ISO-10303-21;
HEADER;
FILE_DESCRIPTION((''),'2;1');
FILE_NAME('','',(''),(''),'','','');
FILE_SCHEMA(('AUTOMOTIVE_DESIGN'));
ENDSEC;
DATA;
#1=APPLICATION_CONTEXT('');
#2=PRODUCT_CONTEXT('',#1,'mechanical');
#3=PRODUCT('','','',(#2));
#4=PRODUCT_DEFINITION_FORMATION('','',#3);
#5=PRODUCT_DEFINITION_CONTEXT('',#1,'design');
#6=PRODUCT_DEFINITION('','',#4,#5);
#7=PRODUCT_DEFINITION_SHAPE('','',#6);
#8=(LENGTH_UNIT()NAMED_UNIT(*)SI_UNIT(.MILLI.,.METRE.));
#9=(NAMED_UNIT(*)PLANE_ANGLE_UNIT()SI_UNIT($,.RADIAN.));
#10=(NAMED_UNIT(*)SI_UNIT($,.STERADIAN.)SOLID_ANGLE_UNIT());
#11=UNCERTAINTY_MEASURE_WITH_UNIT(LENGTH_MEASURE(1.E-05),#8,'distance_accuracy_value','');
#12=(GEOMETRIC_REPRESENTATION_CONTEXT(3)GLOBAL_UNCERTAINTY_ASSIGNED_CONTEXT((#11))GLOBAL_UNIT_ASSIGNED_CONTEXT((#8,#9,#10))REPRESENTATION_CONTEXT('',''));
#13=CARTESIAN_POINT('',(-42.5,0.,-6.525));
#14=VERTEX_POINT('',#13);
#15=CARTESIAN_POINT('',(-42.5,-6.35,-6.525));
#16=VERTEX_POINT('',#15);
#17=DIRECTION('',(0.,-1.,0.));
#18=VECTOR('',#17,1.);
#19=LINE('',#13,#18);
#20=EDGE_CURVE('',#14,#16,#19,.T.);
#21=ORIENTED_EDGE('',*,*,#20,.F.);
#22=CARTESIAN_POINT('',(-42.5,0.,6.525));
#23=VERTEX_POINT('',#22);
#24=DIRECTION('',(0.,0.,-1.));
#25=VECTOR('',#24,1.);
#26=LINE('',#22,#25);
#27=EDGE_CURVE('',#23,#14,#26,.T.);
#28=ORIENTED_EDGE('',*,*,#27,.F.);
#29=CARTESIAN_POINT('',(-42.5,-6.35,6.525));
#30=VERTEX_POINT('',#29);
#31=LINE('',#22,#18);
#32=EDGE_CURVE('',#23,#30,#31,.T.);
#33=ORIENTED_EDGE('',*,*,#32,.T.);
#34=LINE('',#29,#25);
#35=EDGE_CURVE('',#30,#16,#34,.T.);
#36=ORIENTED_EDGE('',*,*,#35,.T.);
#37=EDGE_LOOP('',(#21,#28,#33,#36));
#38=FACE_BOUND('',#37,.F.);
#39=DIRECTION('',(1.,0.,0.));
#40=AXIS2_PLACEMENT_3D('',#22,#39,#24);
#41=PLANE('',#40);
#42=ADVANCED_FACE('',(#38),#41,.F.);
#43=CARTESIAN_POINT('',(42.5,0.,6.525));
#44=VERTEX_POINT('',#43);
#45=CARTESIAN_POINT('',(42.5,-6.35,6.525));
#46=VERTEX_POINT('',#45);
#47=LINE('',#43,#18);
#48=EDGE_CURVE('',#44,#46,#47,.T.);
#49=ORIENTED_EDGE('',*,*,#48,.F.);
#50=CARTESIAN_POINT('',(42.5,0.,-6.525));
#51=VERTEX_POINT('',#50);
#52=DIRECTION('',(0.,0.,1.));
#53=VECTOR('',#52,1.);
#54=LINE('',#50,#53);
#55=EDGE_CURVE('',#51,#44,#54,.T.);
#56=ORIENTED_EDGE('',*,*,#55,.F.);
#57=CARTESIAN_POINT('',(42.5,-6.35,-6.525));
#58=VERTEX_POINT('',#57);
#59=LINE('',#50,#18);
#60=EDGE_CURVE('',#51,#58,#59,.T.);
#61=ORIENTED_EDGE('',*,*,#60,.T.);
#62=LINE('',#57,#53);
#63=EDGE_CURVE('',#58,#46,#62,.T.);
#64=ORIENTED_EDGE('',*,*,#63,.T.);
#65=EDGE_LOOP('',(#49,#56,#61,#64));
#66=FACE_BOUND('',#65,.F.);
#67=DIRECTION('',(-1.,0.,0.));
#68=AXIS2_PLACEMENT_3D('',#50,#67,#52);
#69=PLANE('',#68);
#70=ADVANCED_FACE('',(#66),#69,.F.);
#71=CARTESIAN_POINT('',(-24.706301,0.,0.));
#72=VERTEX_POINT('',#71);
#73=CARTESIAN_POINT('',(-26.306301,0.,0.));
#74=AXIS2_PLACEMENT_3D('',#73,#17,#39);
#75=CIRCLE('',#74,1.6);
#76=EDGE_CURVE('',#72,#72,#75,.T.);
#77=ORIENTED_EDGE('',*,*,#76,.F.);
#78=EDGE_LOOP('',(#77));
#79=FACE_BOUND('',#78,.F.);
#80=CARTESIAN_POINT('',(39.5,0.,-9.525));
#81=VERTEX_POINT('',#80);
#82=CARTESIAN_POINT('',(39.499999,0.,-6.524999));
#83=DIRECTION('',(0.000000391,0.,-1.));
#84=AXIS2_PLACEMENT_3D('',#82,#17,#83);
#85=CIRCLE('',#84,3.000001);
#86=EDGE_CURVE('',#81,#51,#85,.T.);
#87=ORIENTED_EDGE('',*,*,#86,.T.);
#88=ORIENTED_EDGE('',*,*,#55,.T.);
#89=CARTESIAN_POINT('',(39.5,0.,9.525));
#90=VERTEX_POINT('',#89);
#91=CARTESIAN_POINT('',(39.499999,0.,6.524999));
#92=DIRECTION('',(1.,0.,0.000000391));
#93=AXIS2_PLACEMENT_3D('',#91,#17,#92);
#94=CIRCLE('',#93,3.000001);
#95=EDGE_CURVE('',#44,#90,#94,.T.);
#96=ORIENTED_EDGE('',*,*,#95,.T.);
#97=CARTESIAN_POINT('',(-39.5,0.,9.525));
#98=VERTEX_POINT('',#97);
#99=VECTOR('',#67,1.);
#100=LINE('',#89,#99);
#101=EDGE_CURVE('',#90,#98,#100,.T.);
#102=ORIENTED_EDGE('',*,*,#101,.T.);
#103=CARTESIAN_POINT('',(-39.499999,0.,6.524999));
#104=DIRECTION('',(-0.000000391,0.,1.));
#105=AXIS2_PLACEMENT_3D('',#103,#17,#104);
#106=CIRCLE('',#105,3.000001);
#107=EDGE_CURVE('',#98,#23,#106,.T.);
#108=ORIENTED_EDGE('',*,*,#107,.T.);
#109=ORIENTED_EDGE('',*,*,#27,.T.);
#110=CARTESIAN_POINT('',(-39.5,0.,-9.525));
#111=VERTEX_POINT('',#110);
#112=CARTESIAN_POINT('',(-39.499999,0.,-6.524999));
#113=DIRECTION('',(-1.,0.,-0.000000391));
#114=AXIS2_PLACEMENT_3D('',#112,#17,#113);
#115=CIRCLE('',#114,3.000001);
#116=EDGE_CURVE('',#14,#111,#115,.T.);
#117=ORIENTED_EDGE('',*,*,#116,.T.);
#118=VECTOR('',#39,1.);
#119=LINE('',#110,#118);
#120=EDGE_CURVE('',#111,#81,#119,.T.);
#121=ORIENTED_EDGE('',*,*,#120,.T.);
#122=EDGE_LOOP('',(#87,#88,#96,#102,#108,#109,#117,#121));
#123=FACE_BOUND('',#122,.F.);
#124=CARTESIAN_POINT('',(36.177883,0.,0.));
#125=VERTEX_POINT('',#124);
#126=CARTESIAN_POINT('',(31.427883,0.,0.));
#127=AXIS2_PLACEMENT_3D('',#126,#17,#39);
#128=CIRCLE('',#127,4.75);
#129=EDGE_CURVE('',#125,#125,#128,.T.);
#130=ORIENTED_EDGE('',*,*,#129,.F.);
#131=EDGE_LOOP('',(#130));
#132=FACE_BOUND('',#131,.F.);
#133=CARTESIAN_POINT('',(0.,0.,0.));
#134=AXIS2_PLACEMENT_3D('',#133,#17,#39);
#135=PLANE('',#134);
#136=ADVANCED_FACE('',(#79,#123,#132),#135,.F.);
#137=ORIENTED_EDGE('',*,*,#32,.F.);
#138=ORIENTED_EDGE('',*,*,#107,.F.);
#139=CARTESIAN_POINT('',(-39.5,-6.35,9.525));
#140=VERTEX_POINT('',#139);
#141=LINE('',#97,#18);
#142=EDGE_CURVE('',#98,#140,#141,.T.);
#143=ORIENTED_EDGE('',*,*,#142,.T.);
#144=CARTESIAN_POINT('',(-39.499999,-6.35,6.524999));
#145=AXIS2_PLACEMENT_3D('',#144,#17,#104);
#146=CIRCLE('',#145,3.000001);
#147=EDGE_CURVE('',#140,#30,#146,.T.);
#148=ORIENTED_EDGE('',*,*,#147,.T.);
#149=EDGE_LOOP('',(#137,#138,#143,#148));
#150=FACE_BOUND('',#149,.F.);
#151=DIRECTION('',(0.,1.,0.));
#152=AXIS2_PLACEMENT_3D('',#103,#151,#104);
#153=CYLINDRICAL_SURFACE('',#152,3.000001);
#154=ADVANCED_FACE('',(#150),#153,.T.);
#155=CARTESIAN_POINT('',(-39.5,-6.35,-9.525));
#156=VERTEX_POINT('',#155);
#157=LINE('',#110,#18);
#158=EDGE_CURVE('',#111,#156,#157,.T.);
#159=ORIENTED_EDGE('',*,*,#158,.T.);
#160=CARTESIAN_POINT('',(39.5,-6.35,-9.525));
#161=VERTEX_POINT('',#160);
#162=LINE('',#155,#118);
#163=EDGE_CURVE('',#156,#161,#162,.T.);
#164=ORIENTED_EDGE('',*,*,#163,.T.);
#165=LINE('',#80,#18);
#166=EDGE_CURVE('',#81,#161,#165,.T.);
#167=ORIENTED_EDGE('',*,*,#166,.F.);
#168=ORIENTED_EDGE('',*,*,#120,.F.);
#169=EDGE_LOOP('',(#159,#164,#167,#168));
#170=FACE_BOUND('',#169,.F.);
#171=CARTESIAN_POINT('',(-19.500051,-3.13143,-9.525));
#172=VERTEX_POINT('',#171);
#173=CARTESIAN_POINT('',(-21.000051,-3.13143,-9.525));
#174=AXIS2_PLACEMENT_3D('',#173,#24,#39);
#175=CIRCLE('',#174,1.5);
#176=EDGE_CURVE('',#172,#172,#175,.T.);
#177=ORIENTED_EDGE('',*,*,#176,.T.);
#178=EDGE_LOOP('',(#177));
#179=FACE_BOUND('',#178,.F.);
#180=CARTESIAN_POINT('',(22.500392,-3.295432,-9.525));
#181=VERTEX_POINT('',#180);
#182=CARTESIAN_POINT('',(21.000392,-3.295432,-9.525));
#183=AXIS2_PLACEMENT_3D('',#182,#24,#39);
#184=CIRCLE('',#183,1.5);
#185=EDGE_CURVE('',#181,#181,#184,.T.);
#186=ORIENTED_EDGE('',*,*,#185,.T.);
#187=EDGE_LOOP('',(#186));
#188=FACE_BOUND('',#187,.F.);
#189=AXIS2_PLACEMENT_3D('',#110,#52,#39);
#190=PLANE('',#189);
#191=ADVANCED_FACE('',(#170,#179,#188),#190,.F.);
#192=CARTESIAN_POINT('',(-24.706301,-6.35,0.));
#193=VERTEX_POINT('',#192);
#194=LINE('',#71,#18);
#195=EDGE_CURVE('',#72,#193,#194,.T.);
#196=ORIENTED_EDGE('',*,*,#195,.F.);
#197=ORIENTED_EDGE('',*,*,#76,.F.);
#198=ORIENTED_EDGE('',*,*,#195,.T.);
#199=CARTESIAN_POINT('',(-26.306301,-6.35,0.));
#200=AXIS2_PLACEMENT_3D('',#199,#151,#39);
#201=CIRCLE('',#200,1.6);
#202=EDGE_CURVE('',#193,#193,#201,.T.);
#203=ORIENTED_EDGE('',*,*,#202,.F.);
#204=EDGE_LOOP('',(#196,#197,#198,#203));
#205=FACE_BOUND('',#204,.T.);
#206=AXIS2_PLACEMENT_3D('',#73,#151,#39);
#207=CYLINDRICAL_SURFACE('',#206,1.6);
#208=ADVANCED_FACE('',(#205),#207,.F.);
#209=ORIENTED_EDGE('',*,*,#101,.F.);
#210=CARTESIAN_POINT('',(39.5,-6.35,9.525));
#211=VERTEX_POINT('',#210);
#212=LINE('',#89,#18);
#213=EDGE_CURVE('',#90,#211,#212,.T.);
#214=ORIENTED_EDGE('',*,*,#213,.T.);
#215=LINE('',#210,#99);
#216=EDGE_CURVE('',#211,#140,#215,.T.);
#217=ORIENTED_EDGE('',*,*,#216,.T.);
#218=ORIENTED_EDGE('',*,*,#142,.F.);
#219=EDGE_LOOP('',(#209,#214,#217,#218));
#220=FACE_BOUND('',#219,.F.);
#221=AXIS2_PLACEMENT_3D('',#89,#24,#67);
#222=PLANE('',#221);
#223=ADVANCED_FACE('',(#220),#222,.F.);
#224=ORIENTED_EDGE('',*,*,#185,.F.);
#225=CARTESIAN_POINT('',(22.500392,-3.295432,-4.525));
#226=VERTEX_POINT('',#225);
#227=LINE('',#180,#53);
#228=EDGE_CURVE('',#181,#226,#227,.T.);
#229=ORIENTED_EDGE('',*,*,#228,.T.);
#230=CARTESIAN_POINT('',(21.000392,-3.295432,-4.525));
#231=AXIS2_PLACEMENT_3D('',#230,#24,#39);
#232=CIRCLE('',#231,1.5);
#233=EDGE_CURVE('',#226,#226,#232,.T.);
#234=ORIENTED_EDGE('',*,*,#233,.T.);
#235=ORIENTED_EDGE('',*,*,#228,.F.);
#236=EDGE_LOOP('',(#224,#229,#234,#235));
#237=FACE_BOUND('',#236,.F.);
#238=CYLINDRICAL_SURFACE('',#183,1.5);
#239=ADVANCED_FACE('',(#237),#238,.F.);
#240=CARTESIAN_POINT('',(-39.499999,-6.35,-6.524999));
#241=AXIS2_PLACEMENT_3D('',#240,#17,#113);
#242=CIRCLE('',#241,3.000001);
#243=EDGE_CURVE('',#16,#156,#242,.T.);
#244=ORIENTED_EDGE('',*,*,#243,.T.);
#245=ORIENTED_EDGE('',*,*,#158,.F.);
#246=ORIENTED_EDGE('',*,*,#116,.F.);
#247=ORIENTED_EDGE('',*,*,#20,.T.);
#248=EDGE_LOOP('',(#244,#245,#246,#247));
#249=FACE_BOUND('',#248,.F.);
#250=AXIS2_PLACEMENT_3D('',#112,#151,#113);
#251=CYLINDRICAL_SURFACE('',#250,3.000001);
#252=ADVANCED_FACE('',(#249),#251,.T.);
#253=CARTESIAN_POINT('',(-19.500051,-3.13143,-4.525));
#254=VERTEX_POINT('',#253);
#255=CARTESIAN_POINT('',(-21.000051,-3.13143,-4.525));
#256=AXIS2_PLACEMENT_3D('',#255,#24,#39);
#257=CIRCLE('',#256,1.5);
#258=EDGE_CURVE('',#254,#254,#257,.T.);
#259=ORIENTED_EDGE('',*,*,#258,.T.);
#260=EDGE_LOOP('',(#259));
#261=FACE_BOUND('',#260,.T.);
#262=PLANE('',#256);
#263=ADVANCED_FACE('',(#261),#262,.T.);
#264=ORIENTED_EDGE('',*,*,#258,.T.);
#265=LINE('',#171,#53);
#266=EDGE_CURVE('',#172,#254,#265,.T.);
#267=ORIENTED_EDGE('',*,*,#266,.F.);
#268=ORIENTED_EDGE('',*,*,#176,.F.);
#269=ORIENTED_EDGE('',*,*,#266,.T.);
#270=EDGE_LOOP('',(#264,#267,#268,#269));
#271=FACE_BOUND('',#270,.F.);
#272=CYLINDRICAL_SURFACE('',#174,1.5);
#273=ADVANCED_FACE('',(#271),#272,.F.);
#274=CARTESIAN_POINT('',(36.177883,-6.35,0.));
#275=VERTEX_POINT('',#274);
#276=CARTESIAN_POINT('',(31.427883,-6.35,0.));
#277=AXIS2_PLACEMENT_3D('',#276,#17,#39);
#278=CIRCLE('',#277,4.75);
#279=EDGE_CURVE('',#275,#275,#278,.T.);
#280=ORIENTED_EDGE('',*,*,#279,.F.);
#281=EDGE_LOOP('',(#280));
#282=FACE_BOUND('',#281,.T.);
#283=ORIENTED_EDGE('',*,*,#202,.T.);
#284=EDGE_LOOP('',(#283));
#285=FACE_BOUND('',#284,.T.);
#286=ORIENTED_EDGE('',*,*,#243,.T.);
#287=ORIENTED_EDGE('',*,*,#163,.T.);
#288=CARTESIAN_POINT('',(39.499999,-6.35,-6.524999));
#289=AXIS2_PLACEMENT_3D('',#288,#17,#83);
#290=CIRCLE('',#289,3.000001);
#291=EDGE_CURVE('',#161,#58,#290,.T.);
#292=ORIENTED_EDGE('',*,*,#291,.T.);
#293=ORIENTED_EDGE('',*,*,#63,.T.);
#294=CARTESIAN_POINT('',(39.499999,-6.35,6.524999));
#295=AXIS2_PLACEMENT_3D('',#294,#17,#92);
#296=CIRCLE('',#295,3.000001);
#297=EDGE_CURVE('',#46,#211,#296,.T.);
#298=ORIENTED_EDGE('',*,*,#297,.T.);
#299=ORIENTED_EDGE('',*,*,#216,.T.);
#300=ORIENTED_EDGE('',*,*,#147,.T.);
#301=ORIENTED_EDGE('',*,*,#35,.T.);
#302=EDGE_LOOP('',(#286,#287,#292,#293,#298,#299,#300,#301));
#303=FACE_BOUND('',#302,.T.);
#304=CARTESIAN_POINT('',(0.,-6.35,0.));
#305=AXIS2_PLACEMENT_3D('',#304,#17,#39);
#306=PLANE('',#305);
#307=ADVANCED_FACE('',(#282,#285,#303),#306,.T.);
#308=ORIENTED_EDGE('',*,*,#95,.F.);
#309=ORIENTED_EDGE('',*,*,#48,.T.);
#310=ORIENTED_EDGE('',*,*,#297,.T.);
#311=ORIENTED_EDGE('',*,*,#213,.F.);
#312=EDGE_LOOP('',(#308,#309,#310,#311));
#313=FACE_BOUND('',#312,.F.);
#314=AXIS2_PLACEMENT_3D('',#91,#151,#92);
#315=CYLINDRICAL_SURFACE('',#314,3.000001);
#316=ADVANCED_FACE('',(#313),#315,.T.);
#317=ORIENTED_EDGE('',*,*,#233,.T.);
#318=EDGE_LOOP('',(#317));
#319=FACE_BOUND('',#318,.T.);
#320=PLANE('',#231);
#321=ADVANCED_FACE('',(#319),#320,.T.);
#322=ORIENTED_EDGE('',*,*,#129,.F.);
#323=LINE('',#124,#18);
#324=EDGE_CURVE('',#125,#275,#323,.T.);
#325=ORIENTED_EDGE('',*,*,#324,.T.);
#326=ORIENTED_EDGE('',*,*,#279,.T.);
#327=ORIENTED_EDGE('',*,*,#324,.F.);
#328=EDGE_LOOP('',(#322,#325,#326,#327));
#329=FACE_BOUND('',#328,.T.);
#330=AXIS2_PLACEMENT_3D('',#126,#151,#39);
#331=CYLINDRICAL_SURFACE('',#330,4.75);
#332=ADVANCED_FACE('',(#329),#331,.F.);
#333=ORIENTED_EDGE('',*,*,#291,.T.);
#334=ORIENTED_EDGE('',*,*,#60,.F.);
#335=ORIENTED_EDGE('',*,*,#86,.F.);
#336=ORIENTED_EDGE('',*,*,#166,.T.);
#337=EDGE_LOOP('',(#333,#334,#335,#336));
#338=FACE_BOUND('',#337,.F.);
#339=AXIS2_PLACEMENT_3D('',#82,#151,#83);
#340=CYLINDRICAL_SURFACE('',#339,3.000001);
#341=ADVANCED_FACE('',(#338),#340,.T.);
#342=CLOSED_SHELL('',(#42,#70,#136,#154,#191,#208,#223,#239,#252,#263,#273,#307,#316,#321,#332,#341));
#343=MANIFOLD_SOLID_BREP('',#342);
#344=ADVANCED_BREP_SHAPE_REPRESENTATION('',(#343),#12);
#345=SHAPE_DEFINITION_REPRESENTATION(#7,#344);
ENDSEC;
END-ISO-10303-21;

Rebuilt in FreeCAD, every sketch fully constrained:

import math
import FreeCAD as App
import Part
import Sketcher
Q = App.Units.Quantity

doc = App.newDocument("Part")
params = doc.addObject("Spreadsheet::Sheet", "Params")
for row, (alias, value) in enumerate([
    ("sketch1_radius", "3.000001 mm"),
    ("sketch1_diameter", "9.5 mm"),
    ("sketch1_width", "79 mm"),
    ("sketch1_height", "13.05 mm"),
    ("pad1_length", "6.35 mm"),
    ("sketch2_diameter", "3 mm"),
    ("pocket1_length", "5 mm"),
    ("sketch3_diameter", "3.2 mm"),
    ("pocket2_length", "25 mm"),
    ("sketch4_diameter", "3.2 mm"),
    ("pocket3_length", "25 mm"),
], start=1):
    params.set(f"A{row}", alias)
    params.set(f"B{row}", "=" + value)
    params.setAlias(f"B{row}", alias)

body = doc.addObject("PartDesign::Body", "Body")

# Sketch on XZ plane
sketch1 = body.newObject("Sketcher::SketchObject", "Sketch")
sketch1.AttachmentSupport = (doc.getObject("XZ_Plane"), [""])
sketch1.MapMode = "FlatFace"
sketch1.addGeometry([
    Part.LineSegment(App.Vector(39.5, 9.5, 0), App.Vector(-39.5, 9.5, 0)),  # 0
    Part.ArcOfCircle(Part.Circle(App.Vector(-39.5, 6.5, 0), App.Vector(0, 0, 1), 3), math.radians(90), math.radians(180)),  # 1
    Part.LineSegment(App.Vector(-42.5, 6.5, 0), App.Vector(-42.5, -6.5, 0)),  # 2
    Part.ArcOfCircle(Part.Circle(App.Vector(-39.5, -6.5, 0), App.Vector(0, 0, 1), 3), math.radians(-180), math.radians(-90)),  # 3
    Part.LineSegment(App.Vector(-39.5, -9.5, 0), App.Vector(39.5, -9.5, 0)),  # 4
    Part.ArcOfCircle(Part.Circle(App.Vector(39.5, -6.5, 0), App.Vector(0, 0, 1), 3), math.radians(-90), math.radians(0)),  # 5
    Part.LineSegment(App.Vector(42.5, -6.5, 0), App.Vector(42.5, 6.5, 0)),  # 6
    Part.ArcOfCircle(Part.Circle(App.Vector(39.5, 6.5, 0), App.Vector(0, 0, 1), 3), math.radians(0), math.radians(90)),  # 7
    Part.Circle(App.Vector(31.4, 0, 0), App.Vector(0, 0, 1), 4.8),  # 8
], False)
sketch1.addConstraint([
    Sketcher.Constraint("Tangent", 0, 2, 1, 1),
    Sketcher.Constraint("Tangent", 1, 2, 2, 1),
    Sketcher.Constraint("Tangent", 2, 2, 3, 1),
    Sketcher.Constraint("Tangent", 3, 2, 4, 1),
    Sketcher.Constraint("Tangent", 4, 2, 5, 1),
    Sketcher.Constraint("Tangent", 5, 2, 6, 1),
    Sketcher.Constraint("Tangent", 6, 2, 7, 1),
    Sketcher.Constraint("Tangent", 7, 2, 0, 1),
    Sketcher.Constraint("Horizontal", 0),
    Sketcher.Constraint("Vertical", 2),
    Sketcher.Constraint("Horizontal", 4),
    Sketcher.Constraint("Vertical", 6),
    Sketcher.Constraint("Equal", 1, 3),
    Sketcher.Constraint("Equal", 3, 5),
    Sketcher.Constraint("Equal", 5, 7),
    Sketcher.Constraint("Symmetric", 1, 3, 5, 3, -1, 1),
    Sketcher.Constraint("PointOnObject", 8, 3, -1),
    Sketcher.Constraint("Radius", 1, Q("3.000001 mm")),
    Sketcher.Constraint("Diameter", 8, Q("9.5 mm")),
    Sketcher.Constraint("DistanceX", 0, 2, 0, 1, Q("79 mm")),
    Sketcher.Constraint("DistanceY", 2, 2, 2, 1, Q("13.05 mm")),
    Sketcher.Constraint("DistanceX", 1, 3, 8, 3, Q("70.927882 mm")),
])
sketch1.setExpression("Constraints[17]", "Params.sketch1_radius")
sketch1.setExpression("Constraints[18]", "Params.sketch1_diameter")
sketch1.setExpression("Constraints[19]", "Params.sketch1_width")
sketch1.setExpression("Constraints[20]", "Params.sketch1_height")
pad1 = body.newObject("PartDesign::Pad", "Pad")
pad1.Profile = sketch1
pad1.setExpression("Length", "Params.pad1_length")

# Sketch on XY plane
sketch2 = body.newObject("Sketcher::SketchObject", "Sketch001")
sketch2.AttachmentSupport = (doc.getObject("XY_Plane"), [""])
sketch2.MapMode = "FlatFace"
sketch2.AttachmentOffset = App.Placement(App.Vector(0, 0, -9.525), App.Rotation())
sketch2.addGeometry([
    Part.Circle(App.Vector(-21, -3.1, 0), App.Vector(0, 0, 1), 1.5),
    Part.Circle(App.Vector(21, -3.3, 0), App.Vector(0, 0, 1), 1.5),
], False)
sketch2.addConstraint([
    Sketcher.Constraint("Equal", 0, 1),
    Sketcher.Constraint("Diameter", 0, Q("3 mm")),
    Sketcher.Constraint("DistanceY", 1, 3, 0, 3, Q("0.164002 mm")),
    Sketcher.Constraint("DistanceX", 0, 3, -1, 1, Q("21.000051 mm")),
    Sketcher.Constraint("DistanceY", 0, 3, -1, 1, Q("3.13143 mm")),
    Sketcher.Constraint("DistanceX", -1, 1, 1, 3, Q("21.000392 mm")),
])
sketch2.setExpression("Constraints[1]", "Params.sketch2_diameter")
pocket1 = body.newObject("PartDesign::Pocket", "Pocket")
pocket1.Profile = sketch2
pocket1.setExpression("Length", "Params.pocket1_length")
pocket1.Reversed = True

# Sketch on XZ plane
sketch3 = body.newObject("Sketcher::SketchObject", "Sketch002")
sketch3.AttachmentSupport = (doc.getObject("XZ_Plane"), [""])
sketch3.MapMode = "FlatFace"
sketch3.addGeometry(Part.Circle(App.Vector(-26.3, 0, 0), App.Vector(0, 0, 1), 1.6), False)
sketch3.addConstraint([
    Sketcher.Constraint("PointOnObject", 0, 3, -1),
    Sketcher.Constraint("Diameter", 0, Q("3.2 mm")),
    Sketcher.Constraint("DistanceX", 0, 3, -1, 1, Q("26.306301 mm")),
])
sketch3.setExpression("Constraints[1]", "Params.sketch3_diameter")
pocket2 = body.newObject("PartDesign::Pocket", "Pocket001")
pocket2.Profile = sketch3
pocket2.setExpression("Length", "Params.pocket2_length")

# Sketch on XZ plane
sketch4 = body.newObject("Sketcher::SketchObject", "Sketch003")
sketch4.AttachmentSupport = (doc.getObject("XZ_Plane"), [""])
sketch4.MapMode = "FlatFace"
sketch4.addGeometry(Part.Circle(App.Vector(-26.3, 0, 0), App.Vector(0, 0, 1), 1.6), False)
sketch4.addConstraint([
    Sketcher.Constraint("PointOnObject", 0, 3, -1),
    Sketcher.Constraint("Diameter", 0, Q("3.2 mm")),
    Sketcher.Constraint("DistanceX", 0, 3, -1, 1, Q("26.306301 mm")),
])
sketch4.setExpression("Constraints[1]", "Params.sketch4_diameter")
pocket3 = body.newObject("PartDesign::Pocket", "Pocket002")
pocket3.Profile = sketch4
pocket3.setExpression("Length", "Params.pocket3_length")
pocket3.Reversed = True

doc.recompute()
